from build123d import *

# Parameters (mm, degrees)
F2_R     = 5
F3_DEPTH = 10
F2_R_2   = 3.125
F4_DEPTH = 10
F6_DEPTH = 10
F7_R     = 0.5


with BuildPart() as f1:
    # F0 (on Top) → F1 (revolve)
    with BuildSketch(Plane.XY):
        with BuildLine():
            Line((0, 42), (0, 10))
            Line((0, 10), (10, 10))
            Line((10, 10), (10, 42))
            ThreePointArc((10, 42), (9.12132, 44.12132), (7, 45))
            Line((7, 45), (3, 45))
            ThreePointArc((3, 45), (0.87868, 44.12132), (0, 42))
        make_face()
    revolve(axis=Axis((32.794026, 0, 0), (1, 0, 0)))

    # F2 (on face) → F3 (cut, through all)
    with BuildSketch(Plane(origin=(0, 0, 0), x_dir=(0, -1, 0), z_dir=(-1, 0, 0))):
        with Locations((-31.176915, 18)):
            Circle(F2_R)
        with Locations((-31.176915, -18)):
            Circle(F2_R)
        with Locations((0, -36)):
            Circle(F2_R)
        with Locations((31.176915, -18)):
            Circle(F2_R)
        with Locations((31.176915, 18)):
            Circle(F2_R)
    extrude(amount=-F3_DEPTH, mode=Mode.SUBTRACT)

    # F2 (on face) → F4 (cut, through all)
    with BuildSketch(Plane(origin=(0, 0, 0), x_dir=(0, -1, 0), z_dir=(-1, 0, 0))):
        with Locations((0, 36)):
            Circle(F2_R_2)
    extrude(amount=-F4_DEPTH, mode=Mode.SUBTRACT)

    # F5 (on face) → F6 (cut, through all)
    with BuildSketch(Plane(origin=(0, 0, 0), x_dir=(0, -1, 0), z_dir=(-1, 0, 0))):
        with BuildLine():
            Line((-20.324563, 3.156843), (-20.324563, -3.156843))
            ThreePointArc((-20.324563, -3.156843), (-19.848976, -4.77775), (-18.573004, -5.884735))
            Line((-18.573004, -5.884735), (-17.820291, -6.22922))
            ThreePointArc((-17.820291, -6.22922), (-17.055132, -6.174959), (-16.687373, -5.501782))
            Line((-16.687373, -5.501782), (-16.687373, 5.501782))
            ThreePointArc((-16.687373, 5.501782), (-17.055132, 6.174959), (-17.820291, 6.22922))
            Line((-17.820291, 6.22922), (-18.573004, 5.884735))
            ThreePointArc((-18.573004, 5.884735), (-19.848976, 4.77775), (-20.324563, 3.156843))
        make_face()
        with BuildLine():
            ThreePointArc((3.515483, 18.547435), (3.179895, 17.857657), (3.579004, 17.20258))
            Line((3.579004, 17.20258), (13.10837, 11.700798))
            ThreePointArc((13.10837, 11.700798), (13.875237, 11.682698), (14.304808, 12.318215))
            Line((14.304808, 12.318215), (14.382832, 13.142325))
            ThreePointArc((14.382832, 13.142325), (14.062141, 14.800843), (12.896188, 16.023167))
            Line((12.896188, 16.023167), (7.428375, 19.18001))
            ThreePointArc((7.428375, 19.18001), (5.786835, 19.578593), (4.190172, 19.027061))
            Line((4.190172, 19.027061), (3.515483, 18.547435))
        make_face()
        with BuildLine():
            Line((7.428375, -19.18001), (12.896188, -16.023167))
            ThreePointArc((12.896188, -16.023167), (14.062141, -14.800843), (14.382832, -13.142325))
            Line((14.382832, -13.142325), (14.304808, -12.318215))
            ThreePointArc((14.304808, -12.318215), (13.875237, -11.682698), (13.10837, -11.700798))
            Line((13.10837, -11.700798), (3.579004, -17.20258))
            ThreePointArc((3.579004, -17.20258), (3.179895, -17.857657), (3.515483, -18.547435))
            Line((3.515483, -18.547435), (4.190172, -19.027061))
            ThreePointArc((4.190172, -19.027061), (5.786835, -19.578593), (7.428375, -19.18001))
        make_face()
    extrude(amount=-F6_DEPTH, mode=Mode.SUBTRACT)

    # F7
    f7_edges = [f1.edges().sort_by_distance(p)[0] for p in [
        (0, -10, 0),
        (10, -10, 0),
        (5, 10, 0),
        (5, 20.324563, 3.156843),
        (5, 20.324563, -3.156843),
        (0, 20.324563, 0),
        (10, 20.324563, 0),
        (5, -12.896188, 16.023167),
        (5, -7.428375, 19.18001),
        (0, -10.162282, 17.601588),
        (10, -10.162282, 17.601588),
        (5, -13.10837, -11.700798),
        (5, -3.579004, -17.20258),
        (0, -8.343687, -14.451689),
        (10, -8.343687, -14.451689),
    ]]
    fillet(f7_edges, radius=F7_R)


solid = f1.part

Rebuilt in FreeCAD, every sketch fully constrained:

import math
import FreeCAD as App
import Part
import Sketcher

V = App.Vector


def edges_at(feature, points):
    """Names of the edges that pass closest to the given points."""
    edges = feature.Shape.Edges
    near = lambda p: min(range(len(edges)), key=lambda i: edges[i].distToShape(Part.Vertex(*p))[0])
    return sorted({f"Edge{near(p) + 1}" for p in points})

doc = App.newDocument("Part")
body = doc.addObject("PartDesign::Body", "Body")

sketch1 = body.newObject("Sketcher::SketchObject", "Sketch")
sketch1.AttachmentSupport = (doc.getObject("XY_Plane"), [""])
sketch1.MapMode = "FlatFace"
sketch1.addGeometry([
    Part.LineSegment(V(0, 42, 0), V(0, 10, 0)),
    Part.LineSegment(V(0, 10, 0), V(10, 10, 0)),
    Part.LineSegment(V(10, 10, 0), V(10, 42, 0)),
    Part.ArcOfCircle(Part.Circle(V(7, 42, 0), V(0, 0, 1), 3), math.radians(0), math.radians(90)),
    Part.LineSegment(V(7, 45, 0), V(3, 45, 0)),
    Part.ArcOfCircle(Part.Circle(V(3, 42, 0), V(0, 0, 1), 3), math.radians(90), math.radians(180)),
], False)
sketch1.addConstraint([
    Sketcher.Constraint("Coincident", 0, 2, 1, 1),
    Sketcher.Constraint("Coincident", 1, 2, 2, 1),
    Sketcher.Constraint("Tangent", 2, 2, 3, 1),
    Sketcher.Constraint("Tangent", 3, 2, 4, 1),
    Sketcher.Constraint("Tangent", 4, 2, 5, 1),
    Sketcher.Constraint("Tangent", 5, 2, 0, 1),
    Sketcher.Constraint("Vertical", 0),
    Sketcher.Constraint("Horizontal", 1),
    Sketcher.Constraint("Vertical", 2),
    Sketcher.Constraint("Horizontal", 4),
    Sketcher.Constraint("Equal", 3, 5),
    Sketcher.Constraint("PointOnObject", 0, 2, -2),
    Sketcher.Constraint("Radius", 3, 3.000001),
    Sketcher.Constraint("DistanceX", 1, 1, 1, 2, 10.0),
    Sketcher.Constraint("DistanceY", 0, 2, 0, 1, 32.0),
    Sketcher.Constraint("DistanceY", -1, 1, 3, 3, 41.999999),
])
revolution = body.newObject("PartDesign::Revolution", "Revolution")
revolution.Profile = sketch1
revolution.ReferenceAxis = (sketch1, ["H_Axis"])
revolution.Angle = 360

sketch2 = body.newObject("Sketcher::SketchObject", "Sketch001")
sketch2.AttachmentSupport = (doc.getObject("YZ_Plane"), [""])
sketch2.MapMode = "FlatFace"
sketch2.addGeometry([
    Part.Circle(V(31, 18, 0), V(0, 0, 1), 5),
    Part.Circle(V(31, -18, 0), V(0, 0, 1), 5),
    Part.Circle(V(0, -36, 0), V(0, 0, 1), 5),
    Part.Circle(V(-31, -18, 0), V(0, 0, 1), 5),
    Part.Circle(V(-31, 18, 0), V(0, 0, 1), 5),
], False)
sketch2.addConstraint([
    Sketcher.Constraint("Equal", 0, 1),
    Sketcher.Constraint("Equal", 1, 2),
    Sketcher.Constraint("Equal", 2, 3),
    Sketcher.Constraint("Equal", 3, 4),
    Sketcher.Constraint("Symmetric", 0, 3, 3, 3, -1, 1),
    Sketcher.Constraint("Symmetric", 1, 3, 4, 3, -1, 1),
    Sketcher.Constraint("Symmetric", 1, 3, 3, 3, -2),
    Sketcher.Constraint("PointOnObject", 2, 3, -2),
    Sketcher.Constraint("Diameter", 0, 10.0),
    Sketcher.Constraint("DistanceY", -1, 1, 0, 3, 18.0),
    Sketcher.Constraint("DistanceY", 2, 3, -1, 1, 36.0),
    Sketcher.Constraint("DistanceX", 3, 3, 1, 3, 62.35383),
])
pocket1 = body.newObject("PartDesign::Pocket", "Pocket")
pocket1.Profile = sketch2
pocket1.Type = "ThroughAll"
pocket1.Reversed = True

sketch3 = body.newObject("Sketcher::SketchObject", "Sketch002")
sketch3.AttachmentSupport = (doc.getObject("YZ_Plane"), [""])
sketch3.MapMode = "FlatFace"
sketch3.addGeometry(Part.Circle(V(0, 36, 0), V(0, 0, 1), 3.1), False)
sketch3.addConstraint([
    Sketcher.Constraint("PointOnObject", 0, 3, -2),
    Sketcher.Constraint("Diameter", 0, 6.25),
    Sketcher.Constraint("DistanceY", -1, 1, 0, 3, 36.0),
])
pocket2 = body.newObject("PartDesign::Pocket", "Pocket001")
pocket2.Profile = sketch3
pocket2.Type = "ThroughAll"
pocket2.Reversed = True

sketch4 = body.newObject("Sketcher::SketchObject", "Sketch003")
sketch4.AttachmentSupport = (doc.getObject("YZ_Plane"), [""])
sketch4.MapMode = "FlatFace"
sketch4.addGeometry([
    Part.LineSegment(V(20.324563, 3.156843, 0), V(20.324563, -3.156843, 0)),
    Part.ArcOfCircle(Part.Circle(V(17.324564, -3.156843, 0), V(0, 0, 1), 2.999999), math.radians(-65.408438), math.radians(0.000006)),
    Part.LineSegment(V(18.573004, -5.884735, 0), V(17.820291, -6.22922, 0)),
    Part.ArcOfCircle(Part.Circle(V(17.487374, -5.501781, 0), V(0, 0, 1), 0.800001), math.radians(-179.999952), math.radians(-65.408469)),
    Part.LineSegment(V(16.687373, -5.501782, 0), V(16.687373, 5.501782, 0)),
    Part.ArcOfCircle(Part.Circle(V(17.487374, 5.501781, 0), V(0, 0, 1), 0.800001), math.radians(65.408469), math.radians(179.999952)),
    Part.LineSegment(V(17.820291, 6.22922, 0), V(18.573004, 5.884735, 0)),
    Part.ArcOfCircle(Part.Circle(V(17.324564, 3.156843, 0), V(0, 0, 1), 2.999999), math.radians(-0.000006), math.radians(65.408438)),
    Part.ArcOfCircle(Part.Circle(V(-3.979005, 17.895401, 0), V(0, 0, 1), 0.800001), math.radians(-59.999955), math.radians(54.591517)),
    Part.LineSegment(V(-3.579004, 17.20258, 0), V(-13.10837, 11.700798, 0)),
    Part.ArcOfCircle(Part.Circle(V(-13.508369, 12.393619, 0), V(0, 0, 1), 0.8), math.radians(-174.591576), math.radians(-60.000051)),
    Part.LineSegment(V(-14.304808, 12.318215, 0), V(-14.382832, 13.142325, 0)),
    Part.ArcOfCircle(Part.Circle(V(-11.396188, 13.425091, 0), V(0, 0, 1), 3), math.radians(120.000002), math.radians(185.408461)),
    Part.LineSegment(V(-12.896188, 16.023167, 0), V(-7.428375, 19.18001, 0)),
    Part.ArcOfCircle(Part.Circle(V(-5.928375, 16.581936, 0), V(0, 0, 1), 2.999998), math.radians(54.591544), math.radians(120.00001)),
    Part.LineSegment(V(-4.190172, 19.027061, 0), V(-3.515483, 18.547435, 0)),
    Part.LineSegment(V(-7.428375, -19.18001, 0), V(-12.896188, -16.023167, 0)),
    Part.ArcOfCircle(Part.Circle(V(-11.396188, -13.425091, 0), V(0, 0, 1), 3), math.radians(174.591539), math.radians(239.999998)),
    Part.LineSegment(V(-14.382832, -13.142325, 0), V(-14.304808, -12.318215, 0)),
    Part.ArcOfCircle(Part.Circle(V(-13.508369, -12.393619, 0), V(0, 0, 1), 0.8), math.radians(60.000051), math.radians(174.591576)),
    Part.LineSegment(V(-13.10837, -11.700798, 0), V(-3.579004, -17.20258, 0)),
    Part.ArcOfCircle(Part.Circle(V(-3.979005, -17.895401, 0), V(0, 0, 1), 0.800001), math.radians(-54.591517), math.radians(59.999955)),
    Part.LineSegment(V(-3.515483, -18.547435, 0), V(-4.190172, -19.027061, 0)),
    Part.ArcOfCircle(Part.Circle(V(-5.928375, -16.581936, 0), V(0, 0, 1), 2.999998), math.radians(-120.00001), math.radians(-54.591544)),
], False)
sketch4.addConstraint([
    Sketcher.Constraint("Coincident", 0, 2, 1, 2),
    Sketcher.Constraint("Coincident", 1, 1, 2, 1),
    Sketcher.Constraint("Coincident", 2, 2, 3, 2),
    Sketcher.Constraint("Coincident", 3, 1, 4, 1),
    Sketcher.Constraint("Coincident", 4, 2, 5, 2),
    Sketcher.Constraint("Coincident", 5, 1, 6, 1),
    Sketcher.Constraint("Coincident", 6, 2, 7, 2),
    Sketcher.Constraint("Coincident", 7, 1, 0, 1),
    Sketcher.Constraint("Coincident", 8, 1, 9, 1),
    Sketcher.Constraint("Coincident", 9, 2, 10, 2),
    Sketcher.Constraint("Coincident", 10, 1, 11, 1),
    Sketcher.Constraint("Coincident", 11, 2, 12, 2),
    Sketcher.Constraint("Coincident", 12, 1, 13, 1),
    Sketcher.Constraint("Coincident", 13, 2, 14, 2),
    Sketcher.Constraint("Coincident", 14, 1, 15, 1),
    Sketcher.Constraint("Coincident", 15, 2, 8, 2),
    Sketcher.Constraint("Coincident", 16, 2, 17, 2),
    Sketcher.Constraint("Coincident", 17, 1, 18, 1),
    Sketcher.Constraint("Coincident", 18, 2, 19, 2),
    Sketcher.Constraint("Coincident", 19, 1, 20, 1),
    Sketcher.Constraint("Coincident", 20, 2, 21, 2),
    Sketcher.Constraint("Coincident", 21, 1, 22, 1),
    Sketcher.Constraint("Coincident", 22, 2, 23, 2),
    Sketcher.Constraint("Coincident", 23, 1, 16, 1),
    Sketcher.Constraint("Vertical", 0),
    Sketcher.Constraint("Vertical", 4),
    Sketcher.Constraint("Radius", 1, 2.999999),
    Sketcher.Constraint("Radius", 7, 2.999999),
    Sketcher.Constraint("Radius", 12, 3.0),
    Sketcher.Constraint("Radius", 14, 2.999998),
    Sketcher.Constraint("Radius", 17, 3.0),
    Sketcher.Constraint("Radius", 23, 2.999998),
    Sketcher.Constraint("Radius", 3, 0.800001),
    Sketcher.Constraint("Radius", 5, 0.800001),
    Sketcher.Constraint("Radius", 8, 0.800001),
    Sketcher.Constraint("Radius", 10, 0.8),
    Sketcher.Constraint("Radius", 19, 0.8),
    Sketcher.Constraint("Radius", 21, 0.800001),
    Sketcher.Constraint("DistanceX", 8, 3, 8, 1, 0.400001),
    Sketcher.Constraint("DistanceX", 10, 3, 9, 2, 0.399999),
    Sketcher.Constraint("DistanceX", 12, 1, 12, 3, 1.5),
    Sketcher.Constraint("DistanceX", 13, 2, 14, 3, 1.5),
    Sketcher.Constraint("DistanceX", 16, 2, 17, 3, 1.5),
    Sketcher.Constraint("DistanceX", 19, 3, 19, 1, 0.399999),
    Sketcher.Constraint("DistanceX", 21, 3, 20, 2, 0.400001),
    Sketcher.Constraint("DistanceX", 23, 1, 23, 3, 1.5),
    Sketcher.Constraint("DistanceY", -1, 1, 8, 3, 17.895401),
    Sketcher.Constraint("DistanceY", 21, 3, -1, 1, 17.895401),
    Sketcher.Constraint("DistanceY", -1, 1, 9, 2, 11.700798),
    Sketcher.Constraint("DistanceY", 3, 3, 10, 3, 17.8954),
    Sketcher.Constraint("DistanceY", 4, 2, 8, 1, 11.700798),
    Sketcher.Constraint("DistanceY", 14, 3, 15, 2, 1.965499),
    Sketcher.Constraint("DistanceY", 21, 1, 23, 3, 1.965499),
    Sketcher.Constraint("DistanceY", 0, 2, 0, 1, 6.313686),
    Sketcher.Constraint("DistanceY", 4, 1, 4, 2, 11.003564),
    Sketcher.Constraint("DistanceY", -1, 1, 5, 3, 5.501781),
    Sketcher.Constraint("DistanceX", 10, 3, -1, 1, 13.508369),
    Sketcher.Constraint("DistanceX", 12, 3, -1, 1, 11.396188),
    Sketcher.Constraint("DistanceY", -1, 1, 12, 3, 13.425091),
    Sketcher.Constraint("DistanceX", 17, 3, -1, 1, 11.396188),
    Sketcher.Constraint("DistanceY", 17, 3, -1, 1, 13.425091),
    Sketcher.Constraint("DistanceX", 19, 3, -1, 1, 13.508369),
    Sketcher.Constraint("DistanceY", 19, 3, -1, 1, 12.393619),
    Sketcher.Constraint("DistanceX", -1, 1, 2, 2, 17.820291),
    Sketcher.Constraint("DistanceY", 2, 2, -1, 1, 6.22922),
    Sketcher.Constraint("DistanceX", -1, 1, 5, 1, 17.820291),
    Sketcher.Constraint("DistanceX", 10, 1, -1, 1, 14.304808),
    Sketcher.Constraint("DistanceY", -1, 1, 13, 2, 19.18001),
    Sketcher.Constraint("DistanceY", -1, 1, 14, 1, 19.027061),
    Sketcher.Constraint("DistanceX", 22, 2, -1, 1, 4.190172),
    Sketcher.Constraint("DistanceY", 22, 2, -1, 1, 19.027061),
    Sketcher.Constraint("DistanceY", 23, 1, -1, 1, 19.18001),
    Sketcher.Constraint("DistanceX", 1, 3, 3, 3, 0.16281),
    Sketcher.Constraint("DistanceX", 8, 3, 5, 3, 21.466379),
    Sketcher.Constraint("DistanceX", 14, 3, 8, 3, 1.94937),
    Sketcher.Constraint("DistanceX", 21, 3, 3, 3, 21.466379),
    Sketcher.Constraint("DistanceY", 3, 3, 0, 2, 2.344938),
    Sketcher.Constraint("DistanceX", 3, 3, 1, 1, 1.08563),
    Sketcher.Constraint("DistanceY", 1, 1, 7, 3, 9.041578),
    Sketcher.Constraint("DistanceY", 3, 1, 1, 3, 2.344939),
    Sketcher.Constraint("DistanceX", 5, 3, 6, 2, 1.08563),
    Sketcher.Constraint("DistanceY", 10, 1, 11, 2, 0.82411),
    Sketcher.Constraint("DistanceY", 23, 3, 17, 1, 3.439611),
    Sketcher.Constraint("DistanceX", 18, 2, 19, 3, 0.796439),
])
pocket3 = body.newObject("PartDesign::Pocket", "Pocket002")
pocket3.Profile = sketch4
pocket3.Type = "ThroughAll"
pocket3.Reversed = True
doc.recompute()

fillet = body.newObject("PartDesign::Fillet", "Fillet")
fillet.Base = (pocket3, edges_at(pocket3, [
    (0, -10, 0),
    (10, -10, 0),
    (5, 10, 0),
    (5, 20.325, 3.157),
    (5, 20.325, -3.157),
    (0, 20.325, 0),
    (10, 20.325, 0),
    (5, -12.896, 16.023),
    (5, -7.428, 19.18),
    (0, -10.162, 17.602),
    (10, -10.162, 17.602),
    (5, -13.108, -11.701),
    (5, -3.579, -17.203),
    (0, -8.344, -14.452),
    (10, -8.344, -14.452),
]))
fillet.Radius = 0.5

doc.recompute()
